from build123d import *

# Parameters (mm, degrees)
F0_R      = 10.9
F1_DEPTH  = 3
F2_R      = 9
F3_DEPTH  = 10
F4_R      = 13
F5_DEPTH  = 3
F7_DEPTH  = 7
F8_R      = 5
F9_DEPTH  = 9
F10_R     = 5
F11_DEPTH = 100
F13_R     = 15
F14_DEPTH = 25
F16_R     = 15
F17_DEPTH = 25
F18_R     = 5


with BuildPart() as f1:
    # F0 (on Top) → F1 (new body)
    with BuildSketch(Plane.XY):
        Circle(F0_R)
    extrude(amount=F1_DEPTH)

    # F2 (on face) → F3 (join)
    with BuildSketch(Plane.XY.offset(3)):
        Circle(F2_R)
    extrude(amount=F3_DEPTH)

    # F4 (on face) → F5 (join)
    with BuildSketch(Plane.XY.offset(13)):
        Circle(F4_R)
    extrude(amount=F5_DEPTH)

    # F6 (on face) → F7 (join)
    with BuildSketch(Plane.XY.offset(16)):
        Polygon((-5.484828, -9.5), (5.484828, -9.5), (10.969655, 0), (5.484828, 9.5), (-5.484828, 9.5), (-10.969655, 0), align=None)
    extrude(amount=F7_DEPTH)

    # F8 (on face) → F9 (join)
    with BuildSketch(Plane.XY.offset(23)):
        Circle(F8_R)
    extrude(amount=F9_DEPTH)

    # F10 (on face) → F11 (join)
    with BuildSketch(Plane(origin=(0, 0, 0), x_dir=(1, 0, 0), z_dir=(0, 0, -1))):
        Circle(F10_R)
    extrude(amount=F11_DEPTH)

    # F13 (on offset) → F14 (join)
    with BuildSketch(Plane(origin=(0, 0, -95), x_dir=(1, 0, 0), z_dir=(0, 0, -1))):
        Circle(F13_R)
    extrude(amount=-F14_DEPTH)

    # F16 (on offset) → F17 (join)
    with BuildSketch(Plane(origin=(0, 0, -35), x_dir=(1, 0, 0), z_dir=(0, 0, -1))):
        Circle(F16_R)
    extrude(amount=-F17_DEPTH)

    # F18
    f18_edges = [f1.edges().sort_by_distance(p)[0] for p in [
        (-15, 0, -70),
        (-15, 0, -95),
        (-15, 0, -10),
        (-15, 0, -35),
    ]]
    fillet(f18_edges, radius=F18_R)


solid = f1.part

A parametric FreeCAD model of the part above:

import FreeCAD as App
import Part
import Sketcher

V = App.Vector
Q = App.Units.Quantity


def edges_at(feature, points):
    """Names of the edges that pass closest to the given points."""
    edges = feature.Shape.Edges
    near = lambda p: min(range(len(edges)), key=lambda i: edges[i].distToShape(Part.Vertex(*p))[0])
    return sorted({f"Edge{near(p) + 1}" for p in points})

doc = App.newDocument("Part")
body = doc.addObject("PartDesign::Body", "Body")

sketch1 = body.newObject("Sketcher::SketchObject", "Sketch")
sketch1.AttachmentSupport = (doc.getObject("XY_Plane"), [""])
sketch1.MapMode = "FlatFace"
sketch1.addGeometry(Part.Circle(V(0, 0, 0), V(0, 0, 1), 11), False)
sketch1.addConstraint(Sketcher.Constraint("Coincident", 0, 3, -1, 1))
sketch1.addConstraint(Sketcher.Constraint("Diameter", 0, 21.8))
pad1 = body.newObject("PartDesign::Pad", "Pad")
pad1.Profile = sketch1
pad1.Length = 3

sketch2 = body.newObject("Sketcher::SketchObject", "Sketch001")
sketch2.AttachmentSupport = (doc.getObject("XY_Plane"), [""])
sketch2.MapMode = "FlatFace"
sketch2.AttachmentOffset = App.Placement(V(0, 0, 3), App.Rotation())
sketch2.addGeometry(Part.Circle(V(0, 0, 0), V(0, 0, 1), 9), False)
sketch2.addConstraint(Sketcher.Constraint("Coincident", 0, 3, -1, 1))
sketch2.addConstraint(Sketcher.Constraint("Diameter", 0, 18.0))
pad2 = body.newObject("PartDesign::Pad", "Pad001")
pad2.Profile = sketch2
pad2.Length = 10

sketch3 = body.newObject("Sketcher::SketchObject", "Sketch002")
sketch3.AttachmentSupport = (doc.getObject("XY_Plane"), [""])
sketch3.MapMode = "FlatFace"
sketch3.AttachmentOffset = App.Placement(V(0, 0, 13), App.Rotation())
sketch3.addGeometry(Part.Circle(V(0, 0, 0), V(0, 0, 1), 13), False)
sketch3.addConstraint(Sketcher.Constraint("Coincident", 0, 3, -1, 1))
sketch3.addConstraint(Sketcher.Constraint("Diameter", 0, 26.0))
pad3 = body.newObject("PartDesign::Pad", "Pad002")
pad3.Profile = sketch3
pad3.Length = 3

sketch4 = body.newObject("Sketcher::SketchObject", "Sketch003")
sketch4.AttachmentSupport = (doc.getObject("XY_Plane"), [""])
sketch4.MapMode = "FlatFace"
sketch4.AttachmentOffset = App.Placement(V(0, 0, 16), App.Rotation())
sketch4.addGeometry(Part.LineSegment(V(-5, -10, 0), V(5, -10, 0)), False)
sketch4.addGeometry(Part.LineSegment(V(5, -10, 0), V(11, 0, 0)), False)
sketch4.addGeometry(Part.LineSegment(V(11, 0, 0), V(5, 10, 0)), False)
sketch4.addGeometry(Part.LineSegment(V(5, 10, 0), V(-5, 10, 0)), False)
sketch4.addGeometry(Part.LineSegment(V(-5, 10, 0), V(-11, 0, 0)), False)
sketch4.addGeometry(Part.LineSegment(V(-11, 0, 0), V(-5, -10, 0)), False)
sketch4.addConstraint(Sketcher.Constraint("Coincident", 0, 2, 1, 1))
sketch4.addConstraint(Sketcher.Constraint("Coincident", 1, 2, 2, 1))
sketch4.addConstraint(Sketcher.Constraint("Coincident", 2, 2, 3, 1))
sketch4.addConstraint(Sketcher.Constraint("Coincident", 3, 2, 4, 1))
sketch4.addConstraint(Sketcher.Constraint("Coincident", 4, 2, 5, 1))
sketch4.addConstraint(Sketcher.Constraint("Coincident", 5, 2, 0, 1))
sketch4.addConstraint(Sketcher.Constraint("Horizontal", 0))
sketch4.addConstraint(Sketcher.Constraint("Horizontal", 3))
sketch4.addConstraint(Sketcher.Constraint("Symmetric", 0, 2, 3, 2, -1, 1))
sketch4.addConstraint(Sketcher.Constraint("Symmetric", 1, 2, 4, 2, -1, 1))
sketch4.addConstraint(Sketcher.Constraint("PointOnObject", 1, 2, -1))
sketch4.addConstraint(Sketcher.Constraint("Parallel", 2, 5))
sketch4.addConstraint(Sketcher.Constraint("Vertical", 0, 2, 2, 2))
sketch4.addConstraint(Sketcher.Constraint("Angle", 1, Q("60.000003 deg")))
sketch4.addConstraint(Sketcher.Constraint("DistanceY", 0, 2, 2, 2, 19.0))
sketch4.addConstraint(Sketcher.Constraint("DistanceX", 0, 1, 0, 2, 10.969656))
pad4 = body.newObject("PartDesign::Pad", "Pad003")
pad4.Profile = sketch4
pad4.Length = 7

sketch5 = body.newObject("Sketcher::SketchObject", "Sketch004")
sketch5.AttachmentSupport = (doc.getObject("XY_Plane"), [""])
sketch5.MapMode = "FlatFace"
sketch5.AttachmentOffset = App.Placement(V(0, 0, 23), App.Rotation())
sketch5.addGeometry(Part.Circle(V(0, 0, 0), V(0, 0, 1), 5), False)
sketch5.addConstraint(Sketcher.Constraint("Coincident", 0, 3, -1, 1))
sketch5.addConstraint(Sketcher.Constraint("Diameter", 0, 10.0))
pad5 = body.newObject("PartDesign::Pad", "Pad004")
pad5.Profile = sketch5
pad5.Length = 9

sketch6 = body.newObject("Sketcher::SketchObject", "Sketch005")
sketch6.AttachmentSupport = (doc.getObject("XY_Plane"), [""])
sketch6.MapMode = "FlatFace"
sketch6.addGeometry(Part.Circle(V(0, 0, 0), V(0, 0, 1), 5), False)
sketch6.addConstraint(Sketcher.Constraint("Coincident", 0, 3, -1, 1))
sketch6.addConstraint(Sketcher.Constraint("Diameter", 0, 10.0))
pad6 = body.newObject("PartDesign::Pad", "Pad005")
pad6.Profile = sketch6
pad6.Length = 100
pad6.Reversed = True

sketch7 = body.newObject("Sketcher::SketchObject", "Sketch006")
sketch7.AttachmentSupport = (doc.getObject("XY_Plane"), [""])
sketch7.MapMode = "FlatFace"
sketch7.AttachmentOffset = App.Placement(V(0, 0, -95), App.Rotation())
sketch7.addGeometry(Part.Circle(V(0, 0, 0), V(0, 0, 1), 15), False)
sketch7.addConstraint(Sketcher.Constraint("Coincident", 0, 3, -1, 1))
sketch7.addConstraint(Sketcher.Constraint("Diameter", 0, 30.0))
pad7 = body.newObject("PartDesign::Pad", "Pad006")
pad7.Profile = sketch7
pad7.Length = 25

sketch8 = body.newObject("Sketcher::SketchObject", "Sketch007")
sketch8.AttachmentSupport = (doc.getObject("XY_Plane"), [""])
sketch8.MapMode = "FlatFace"
sketch8.AttachmentOffset = App.Placement(V(0, 0, -35), App.Rotation())
sketch8.addGeometry(Part.Circle(V(0, 0, 0), V(0, 0, 1), 15), False)
sketch8.addConstraint(Sketcher.Constraint("Coincident", 0, 3, -1, 1))
sketch8.addConstraint(Sketcher.Constraint("Diameter", 0, 30.0))
pad8 = body.newObject("PartDesign::Pad", "Pad007")
pad8.Profile = sketch8
pad8.Length = 25
doc.recompute()

fillet = body.newObject("PartDesign::Fillet", "Fillet")
fillet.Base = (pad8, edges_at(pad8, [
    (-15, 0, -70),
    (-15, 0, -95),
    (-15, 0, -10),
    (-15, 0, -35),
]))
fillet.Radius = 5

doc.recompute()
